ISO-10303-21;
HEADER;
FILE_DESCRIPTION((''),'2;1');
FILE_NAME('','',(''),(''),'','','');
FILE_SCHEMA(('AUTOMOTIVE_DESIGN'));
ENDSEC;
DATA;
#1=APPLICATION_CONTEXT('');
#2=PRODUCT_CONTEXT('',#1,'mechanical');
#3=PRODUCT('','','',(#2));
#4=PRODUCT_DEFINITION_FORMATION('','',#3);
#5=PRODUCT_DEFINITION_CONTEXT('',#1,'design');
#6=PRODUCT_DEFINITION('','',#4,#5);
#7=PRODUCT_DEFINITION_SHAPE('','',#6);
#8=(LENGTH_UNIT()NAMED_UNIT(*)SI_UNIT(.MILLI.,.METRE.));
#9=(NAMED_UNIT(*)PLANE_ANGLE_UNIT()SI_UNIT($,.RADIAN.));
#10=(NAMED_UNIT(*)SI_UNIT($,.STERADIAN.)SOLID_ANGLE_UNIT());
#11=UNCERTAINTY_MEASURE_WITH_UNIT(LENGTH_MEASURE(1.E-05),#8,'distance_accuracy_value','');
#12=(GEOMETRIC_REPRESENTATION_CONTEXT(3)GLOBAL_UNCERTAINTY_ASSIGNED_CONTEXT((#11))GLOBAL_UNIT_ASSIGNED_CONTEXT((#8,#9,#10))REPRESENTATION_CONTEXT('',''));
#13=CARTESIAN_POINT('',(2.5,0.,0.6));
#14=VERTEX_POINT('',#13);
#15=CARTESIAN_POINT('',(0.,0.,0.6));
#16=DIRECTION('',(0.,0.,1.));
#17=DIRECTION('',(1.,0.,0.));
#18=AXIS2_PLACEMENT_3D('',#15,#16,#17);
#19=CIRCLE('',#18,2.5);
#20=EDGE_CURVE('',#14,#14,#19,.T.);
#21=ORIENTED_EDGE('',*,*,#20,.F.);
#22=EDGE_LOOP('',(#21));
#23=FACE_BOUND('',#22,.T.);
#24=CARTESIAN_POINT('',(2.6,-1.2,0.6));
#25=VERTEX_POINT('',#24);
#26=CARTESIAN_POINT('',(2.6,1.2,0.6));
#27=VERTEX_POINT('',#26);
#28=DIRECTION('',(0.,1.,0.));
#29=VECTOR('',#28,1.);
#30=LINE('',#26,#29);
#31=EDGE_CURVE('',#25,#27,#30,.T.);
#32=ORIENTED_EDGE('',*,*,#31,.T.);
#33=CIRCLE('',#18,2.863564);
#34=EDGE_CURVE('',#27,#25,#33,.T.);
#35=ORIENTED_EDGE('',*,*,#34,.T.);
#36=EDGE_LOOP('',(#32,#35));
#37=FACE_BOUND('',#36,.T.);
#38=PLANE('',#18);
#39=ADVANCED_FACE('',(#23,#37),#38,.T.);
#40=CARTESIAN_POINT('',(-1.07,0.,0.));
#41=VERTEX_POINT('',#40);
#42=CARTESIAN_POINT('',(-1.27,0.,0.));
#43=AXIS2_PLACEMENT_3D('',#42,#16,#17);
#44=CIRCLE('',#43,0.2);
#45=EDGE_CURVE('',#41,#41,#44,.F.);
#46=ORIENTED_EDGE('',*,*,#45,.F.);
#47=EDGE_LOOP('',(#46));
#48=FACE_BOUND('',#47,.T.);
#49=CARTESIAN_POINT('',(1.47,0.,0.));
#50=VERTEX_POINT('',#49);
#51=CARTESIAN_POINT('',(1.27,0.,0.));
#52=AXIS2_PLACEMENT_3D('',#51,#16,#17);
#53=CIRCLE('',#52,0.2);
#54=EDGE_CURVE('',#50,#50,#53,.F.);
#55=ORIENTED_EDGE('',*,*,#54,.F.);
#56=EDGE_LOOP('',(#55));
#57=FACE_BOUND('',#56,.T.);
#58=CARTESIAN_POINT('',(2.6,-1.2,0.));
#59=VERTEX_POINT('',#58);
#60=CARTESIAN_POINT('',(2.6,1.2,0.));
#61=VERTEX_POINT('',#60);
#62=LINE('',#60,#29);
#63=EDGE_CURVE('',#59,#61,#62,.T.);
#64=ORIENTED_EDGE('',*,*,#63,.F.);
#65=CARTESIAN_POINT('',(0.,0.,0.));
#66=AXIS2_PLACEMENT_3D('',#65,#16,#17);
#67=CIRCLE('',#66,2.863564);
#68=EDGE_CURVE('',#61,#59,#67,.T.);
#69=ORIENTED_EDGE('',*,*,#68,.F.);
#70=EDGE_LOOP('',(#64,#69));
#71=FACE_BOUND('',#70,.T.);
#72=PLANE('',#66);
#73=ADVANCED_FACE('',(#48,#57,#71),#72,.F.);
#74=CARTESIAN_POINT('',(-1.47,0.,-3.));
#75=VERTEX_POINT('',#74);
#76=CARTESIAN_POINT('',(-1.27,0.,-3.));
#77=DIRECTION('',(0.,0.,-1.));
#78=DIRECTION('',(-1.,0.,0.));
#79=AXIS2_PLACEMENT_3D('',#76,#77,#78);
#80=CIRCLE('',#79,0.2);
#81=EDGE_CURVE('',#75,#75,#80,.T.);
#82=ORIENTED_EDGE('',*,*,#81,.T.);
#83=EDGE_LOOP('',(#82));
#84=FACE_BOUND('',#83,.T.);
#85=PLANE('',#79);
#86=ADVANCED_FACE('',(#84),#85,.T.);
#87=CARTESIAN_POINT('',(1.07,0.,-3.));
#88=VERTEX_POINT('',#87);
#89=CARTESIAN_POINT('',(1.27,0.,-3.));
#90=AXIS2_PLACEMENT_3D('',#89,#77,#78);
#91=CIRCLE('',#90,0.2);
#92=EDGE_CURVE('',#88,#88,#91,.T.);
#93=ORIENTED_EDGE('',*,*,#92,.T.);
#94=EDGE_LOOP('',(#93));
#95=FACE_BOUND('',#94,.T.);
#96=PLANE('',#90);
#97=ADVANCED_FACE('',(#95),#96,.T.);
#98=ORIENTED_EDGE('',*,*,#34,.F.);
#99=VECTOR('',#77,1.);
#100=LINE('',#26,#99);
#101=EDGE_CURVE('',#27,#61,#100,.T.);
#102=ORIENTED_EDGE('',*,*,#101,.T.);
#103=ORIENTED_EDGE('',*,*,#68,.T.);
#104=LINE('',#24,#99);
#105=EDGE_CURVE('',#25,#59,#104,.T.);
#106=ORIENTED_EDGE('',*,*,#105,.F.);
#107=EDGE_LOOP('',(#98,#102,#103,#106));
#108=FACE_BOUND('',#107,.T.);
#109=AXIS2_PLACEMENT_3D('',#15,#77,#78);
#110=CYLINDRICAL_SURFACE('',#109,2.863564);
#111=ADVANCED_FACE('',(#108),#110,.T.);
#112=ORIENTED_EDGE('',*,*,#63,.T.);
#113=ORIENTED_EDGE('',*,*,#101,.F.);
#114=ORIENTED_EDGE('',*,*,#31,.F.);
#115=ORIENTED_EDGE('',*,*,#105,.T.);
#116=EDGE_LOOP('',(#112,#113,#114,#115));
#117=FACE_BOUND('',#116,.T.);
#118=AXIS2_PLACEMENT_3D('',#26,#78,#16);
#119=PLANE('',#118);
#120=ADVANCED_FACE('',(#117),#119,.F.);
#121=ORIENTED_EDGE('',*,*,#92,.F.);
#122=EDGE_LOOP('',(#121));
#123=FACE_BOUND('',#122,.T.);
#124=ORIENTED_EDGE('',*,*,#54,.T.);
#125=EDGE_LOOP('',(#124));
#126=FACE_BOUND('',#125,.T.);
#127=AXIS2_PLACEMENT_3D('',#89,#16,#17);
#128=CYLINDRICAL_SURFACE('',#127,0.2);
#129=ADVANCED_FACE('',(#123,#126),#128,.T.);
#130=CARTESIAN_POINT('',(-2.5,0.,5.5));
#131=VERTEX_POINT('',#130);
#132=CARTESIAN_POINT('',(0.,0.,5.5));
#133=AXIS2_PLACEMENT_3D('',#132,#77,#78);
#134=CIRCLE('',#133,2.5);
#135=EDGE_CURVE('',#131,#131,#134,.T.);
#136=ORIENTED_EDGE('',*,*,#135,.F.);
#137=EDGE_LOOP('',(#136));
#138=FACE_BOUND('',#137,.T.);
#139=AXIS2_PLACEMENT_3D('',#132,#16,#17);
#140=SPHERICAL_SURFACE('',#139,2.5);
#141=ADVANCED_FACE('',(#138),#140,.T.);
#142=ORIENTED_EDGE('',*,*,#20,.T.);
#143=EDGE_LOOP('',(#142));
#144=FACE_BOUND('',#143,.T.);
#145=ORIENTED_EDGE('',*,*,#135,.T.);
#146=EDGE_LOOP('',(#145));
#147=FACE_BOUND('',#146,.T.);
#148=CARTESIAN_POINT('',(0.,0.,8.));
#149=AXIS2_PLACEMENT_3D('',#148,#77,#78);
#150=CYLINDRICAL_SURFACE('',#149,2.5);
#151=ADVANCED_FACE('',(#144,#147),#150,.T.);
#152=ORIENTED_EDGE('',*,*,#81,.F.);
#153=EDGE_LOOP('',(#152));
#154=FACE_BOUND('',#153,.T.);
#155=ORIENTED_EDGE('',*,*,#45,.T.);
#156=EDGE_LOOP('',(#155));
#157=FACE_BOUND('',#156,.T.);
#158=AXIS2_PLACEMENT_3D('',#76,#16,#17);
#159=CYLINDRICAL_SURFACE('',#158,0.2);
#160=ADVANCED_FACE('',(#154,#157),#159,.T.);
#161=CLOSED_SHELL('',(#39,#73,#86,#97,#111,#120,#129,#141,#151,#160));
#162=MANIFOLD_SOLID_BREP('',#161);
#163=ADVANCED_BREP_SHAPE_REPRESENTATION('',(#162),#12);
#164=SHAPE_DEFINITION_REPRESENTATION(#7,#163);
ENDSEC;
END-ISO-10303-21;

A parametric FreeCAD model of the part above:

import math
import FreeCAD as App
import Part
import Sketcher
from FreeCAD import Vector
Q = App.Units.Quantity


def edges_at(feature, points):
    """Names of the edges that pass closest to the given points."""
    edges = feature.Shape.Edges
    near = lambda p: min(range(len(edges)), key=lambda i: edges[i].distToShape(Part.Vertex(*p))[0])
    return sorted({f"Edge{near(p) + 1}" for p in points})

doc = App.newDocument("Part")
body = doc.addObject("PartDesign::Body", "Body")

# Sketch on XY plane
sketch1 = body.newObject("Sketcher::SketchObject", "Sketch")
sketch1.AttachmentSupport = (doc.getObject("XY_Plane"), [""])
sketch1.MapMode = "FlatFace"
sketch1.addGeometry([
    Part.LineSegment(Vector(2.6, -1.2, 0), Vector(2.6, 1.2, 0)),
    Part.ArcOfCircle(Part.Circle(Vector(0, 0, 0), Vector(0, 0, 1), 2.9), math.radians(25), math.radians(335)),
], False)
sketch1.addConstraint([
    Sketcher.Constraint("Coincident", 0, 1, 1, 2),
    Sketcher.Constraint("Coincident", 1, 1, 0, 2),
    Sketcher.Constraint("Vertical", 0),
    Sketcher.Constraint("Coincident", 1, 3, -1, 1),
    Sketcher.Constraint("DistanceY", 0, 1, 0, 2, Q("2.4 mm")),
    Sketcher.Constraint("DistanceX", -1, 1, 0, 1, Q("2.6 mm")),
])
pad1 = body.newObject("PartDesign::Pad", "Pad")
pad1.Profile = sketch1
pad1.Length = 0.6

# Sketch on XY plane
sketch2 = body.newObject("Sketcher::SketchObject", "Sketch001")
sketch2.AttachmentSupport = (doc.getObject("XY_Plane"), [""])
sketch2.MapMode = "FlatFace"
sketch2.AttachmentOffset = App.Placement(Vector(0, 0, 0.6), App.Rotation())
sketch2.addGeometry(Part.Circle(Vector(0, 0, 0), Vector(0, 0, 1), 2.5), False)
sketch2.addConstraint([
    Sketcher.Constraint("Coincident", 0, 3, -1, 1),
    Sketcher.Constraint("Diameter", 0, Q("5 mm")),
])
pad2 = body.newObject("PartDesign::Pad", "Pad001")
pad2.Profile = sketch2
pad2.Length = 7.4
doc.recompute()

fillet = body.newObject("PartDesign::Fillet", "Fillet")
fillet.Base = (pad2, edges_at(pad2, [(-2.5, 0, 8)]))
fillet.Radius = 2.5

# Sketch on XY plane
sketch3 = body.newObject("Sketcher::SketchObject", "Sketch002")
sketch3.AttachmentSupport = (doc.getObject("XY_Plane"), [""])
sketch3.MapMode = "FlatFace"
sketch3.addGeometry([
    Part.Circle(Vector(-1.27, 0, 0), Vector(0, 0, 1), 0.2),
    Part.Circle(Vector(1.27, 0, 0), Vector(0, 0, 1), 0.2),
], False)
sketch3.addConstraint([
    Sketcher.Constraint("Equal", 0, 1),
    Sketcher.Constraint("Symmetric", 0, 3, 1, 3, -1, 1),
    Sketcher.Constraint("PointOnObject", 0, 3, -1),
    Sketcher.Constraint("Diameter", 0, Q("0.4 mm")),
    Sketcher.Constraint("DistanceX", 0, 3, -1, 1, Q("1.27 mm")),
])
pad3 = body.newObject("PartDesign::Pad", "Pad002")
pad3.Profile = sketch3
pad3.Length = 3
pad3.Reversed = True

doc.recompute()
